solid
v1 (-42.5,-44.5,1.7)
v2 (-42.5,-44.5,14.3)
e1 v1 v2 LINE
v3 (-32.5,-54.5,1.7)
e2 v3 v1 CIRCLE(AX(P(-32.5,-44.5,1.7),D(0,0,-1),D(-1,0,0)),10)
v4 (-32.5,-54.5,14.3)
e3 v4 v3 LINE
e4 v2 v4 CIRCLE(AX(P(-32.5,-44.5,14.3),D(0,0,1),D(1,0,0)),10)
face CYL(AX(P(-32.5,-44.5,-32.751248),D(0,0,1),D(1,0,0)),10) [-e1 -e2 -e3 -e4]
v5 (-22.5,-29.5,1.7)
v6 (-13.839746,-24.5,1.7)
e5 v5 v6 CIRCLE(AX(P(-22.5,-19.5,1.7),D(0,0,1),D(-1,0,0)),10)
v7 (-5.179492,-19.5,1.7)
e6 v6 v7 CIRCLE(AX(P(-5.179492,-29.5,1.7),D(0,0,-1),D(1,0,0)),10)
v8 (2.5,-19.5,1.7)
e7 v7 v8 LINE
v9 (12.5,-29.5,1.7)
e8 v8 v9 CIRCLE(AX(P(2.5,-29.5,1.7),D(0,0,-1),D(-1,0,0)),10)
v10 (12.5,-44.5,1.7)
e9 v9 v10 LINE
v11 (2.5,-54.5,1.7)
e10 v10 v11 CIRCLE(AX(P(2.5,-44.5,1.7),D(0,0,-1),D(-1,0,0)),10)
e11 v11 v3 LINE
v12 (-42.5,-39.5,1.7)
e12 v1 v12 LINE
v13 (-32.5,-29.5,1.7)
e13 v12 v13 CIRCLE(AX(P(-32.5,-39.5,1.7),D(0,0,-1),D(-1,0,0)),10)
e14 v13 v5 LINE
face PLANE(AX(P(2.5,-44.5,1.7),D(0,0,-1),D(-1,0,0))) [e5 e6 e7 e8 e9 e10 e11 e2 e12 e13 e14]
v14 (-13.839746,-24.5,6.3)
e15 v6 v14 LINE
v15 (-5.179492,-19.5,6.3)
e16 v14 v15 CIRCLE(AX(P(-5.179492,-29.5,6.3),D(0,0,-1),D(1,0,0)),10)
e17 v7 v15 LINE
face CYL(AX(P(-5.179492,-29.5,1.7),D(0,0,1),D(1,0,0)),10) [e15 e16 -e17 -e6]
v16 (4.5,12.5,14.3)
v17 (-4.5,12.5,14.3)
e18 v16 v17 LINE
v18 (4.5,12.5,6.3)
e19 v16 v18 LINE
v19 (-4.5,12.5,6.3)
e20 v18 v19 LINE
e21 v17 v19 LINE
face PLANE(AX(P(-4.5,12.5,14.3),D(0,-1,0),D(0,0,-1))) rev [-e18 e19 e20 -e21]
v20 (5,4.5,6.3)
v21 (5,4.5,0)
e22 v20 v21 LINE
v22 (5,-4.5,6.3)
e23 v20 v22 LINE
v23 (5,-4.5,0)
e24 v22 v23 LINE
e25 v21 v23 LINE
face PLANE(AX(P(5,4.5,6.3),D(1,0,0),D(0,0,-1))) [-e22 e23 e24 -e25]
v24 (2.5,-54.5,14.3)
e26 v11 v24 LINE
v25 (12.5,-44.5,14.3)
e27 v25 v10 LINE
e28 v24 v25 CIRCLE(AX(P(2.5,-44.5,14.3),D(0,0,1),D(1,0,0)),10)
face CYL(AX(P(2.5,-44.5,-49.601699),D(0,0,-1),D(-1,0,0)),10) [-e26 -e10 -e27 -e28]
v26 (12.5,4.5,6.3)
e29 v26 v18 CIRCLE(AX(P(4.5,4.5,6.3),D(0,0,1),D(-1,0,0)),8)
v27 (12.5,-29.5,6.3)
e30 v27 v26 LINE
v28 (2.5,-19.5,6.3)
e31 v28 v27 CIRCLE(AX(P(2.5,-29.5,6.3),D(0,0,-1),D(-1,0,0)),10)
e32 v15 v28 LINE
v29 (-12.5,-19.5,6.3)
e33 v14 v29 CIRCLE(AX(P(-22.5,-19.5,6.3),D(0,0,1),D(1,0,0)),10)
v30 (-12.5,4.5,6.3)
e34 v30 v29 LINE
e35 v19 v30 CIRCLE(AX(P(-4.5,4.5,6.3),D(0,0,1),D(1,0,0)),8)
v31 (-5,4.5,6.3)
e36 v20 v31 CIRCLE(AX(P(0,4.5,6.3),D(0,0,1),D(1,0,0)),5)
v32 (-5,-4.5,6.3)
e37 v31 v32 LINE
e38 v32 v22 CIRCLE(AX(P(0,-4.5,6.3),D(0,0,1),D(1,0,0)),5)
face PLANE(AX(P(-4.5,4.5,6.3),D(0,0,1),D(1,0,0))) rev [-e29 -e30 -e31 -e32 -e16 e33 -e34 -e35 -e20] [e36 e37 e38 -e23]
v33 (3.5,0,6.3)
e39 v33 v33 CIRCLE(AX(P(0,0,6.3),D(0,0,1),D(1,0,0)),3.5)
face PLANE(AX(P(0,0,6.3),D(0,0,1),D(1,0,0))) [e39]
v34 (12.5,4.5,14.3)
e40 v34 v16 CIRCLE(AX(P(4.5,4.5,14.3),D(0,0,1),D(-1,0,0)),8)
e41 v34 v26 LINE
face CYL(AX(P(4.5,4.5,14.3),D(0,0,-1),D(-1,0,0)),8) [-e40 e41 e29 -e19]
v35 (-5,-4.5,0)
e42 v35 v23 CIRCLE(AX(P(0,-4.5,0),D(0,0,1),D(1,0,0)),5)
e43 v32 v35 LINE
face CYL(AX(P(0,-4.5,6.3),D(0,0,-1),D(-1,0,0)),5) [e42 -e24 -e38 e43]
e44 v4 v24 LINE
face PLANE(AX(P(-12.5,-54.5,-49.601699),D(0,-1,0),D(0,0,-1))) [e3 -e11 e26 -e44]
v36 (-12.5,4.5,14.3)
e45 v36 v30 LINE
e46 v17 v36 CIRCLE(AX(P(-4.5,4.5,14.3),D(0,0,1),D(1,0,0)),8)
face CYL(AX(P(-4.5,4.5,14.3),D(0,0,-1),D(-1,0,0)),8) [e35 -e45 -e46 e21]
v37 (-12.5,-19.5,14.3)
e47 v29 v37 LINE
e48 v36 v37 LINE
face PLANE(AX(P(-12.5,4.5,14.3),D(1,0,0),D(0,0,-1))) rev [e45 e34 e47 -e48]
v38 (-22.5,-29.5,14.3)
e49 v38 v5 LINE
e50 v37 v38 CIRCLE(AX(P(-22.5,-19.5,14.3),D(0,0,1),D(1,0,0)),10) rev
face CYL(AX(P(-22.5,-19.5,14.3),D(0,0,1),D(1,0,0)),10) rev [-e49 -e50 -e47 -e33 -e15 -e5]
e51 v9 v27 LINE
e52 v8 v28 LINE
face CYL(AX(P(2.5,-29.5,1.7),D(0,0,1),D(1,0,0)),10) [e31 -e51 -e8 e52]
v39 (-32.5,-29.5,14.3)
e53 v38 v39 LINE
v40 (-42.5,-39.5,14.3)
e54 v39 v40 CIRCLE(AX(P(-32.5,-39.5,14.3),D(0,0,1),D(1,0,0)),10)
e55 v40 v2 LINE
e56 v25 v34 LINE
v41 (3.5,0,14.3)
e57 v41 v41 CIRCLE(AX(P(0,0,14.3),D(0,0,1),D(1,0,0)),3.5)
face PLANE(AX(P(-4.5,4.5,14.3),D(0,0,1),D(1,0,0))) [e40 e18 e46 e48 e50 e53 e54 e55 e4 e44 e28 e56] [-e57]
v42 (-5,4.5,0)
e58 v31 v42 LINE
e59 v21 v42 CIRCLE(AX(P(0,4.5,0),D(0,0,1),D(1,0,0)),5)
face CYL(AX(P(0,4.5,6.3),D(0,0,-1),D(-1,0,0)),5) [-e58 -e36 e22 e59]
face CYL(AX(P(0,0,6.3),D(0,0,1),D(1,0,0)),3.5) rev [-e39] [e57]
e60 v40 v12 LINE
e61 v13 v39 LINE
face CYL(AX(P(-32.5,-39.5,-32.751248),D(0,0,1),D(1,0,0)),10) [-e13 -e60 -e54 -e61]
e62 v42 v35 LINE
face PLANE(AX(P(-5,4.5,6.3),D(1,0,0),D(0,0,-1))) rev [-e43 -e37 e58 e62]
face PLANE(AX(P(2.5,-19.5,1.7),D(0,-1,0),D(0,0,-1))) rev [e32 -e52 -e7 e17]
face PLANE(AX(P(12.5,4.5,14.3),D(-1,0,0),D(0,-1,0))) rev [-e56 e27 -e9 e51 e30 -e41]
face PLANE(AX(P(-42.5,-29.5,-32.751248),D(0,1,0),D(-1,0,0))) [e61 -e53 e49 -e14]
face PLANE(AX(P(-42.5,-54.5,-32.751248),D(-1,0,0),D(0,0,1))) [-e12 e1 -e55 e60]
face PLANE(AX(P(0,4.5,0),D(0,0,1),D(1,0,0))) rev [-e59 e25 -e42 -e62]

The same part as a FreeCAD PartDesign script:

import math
import FreeCAD as App
import Part
import Sketcher
from FreeCAD import Vector
Q = App.Units.Quantity


def edges_at(feature, points):
    """Names of the edges that pass closest to the given points."""
    edges = feature.Shape.Edges
    near = lambda p: min(range(len(edges)), key=lambda i: edges[i].distToShape(Part.Vertex(*p))[0])
    return sorted({f"Edge{near(p) + 1}" for p in points})


def add_polygon(sketch, points):
    """Adds a closed chain of lines whose ends are joined by coincident constraints."""
    first, n = sketch.GeometryCount, len(points)
    for a, b in zip(points, points[1:] + points[:1]):
        sketch.addGeometry(Part.LineSegment(App.Vector(*a, 0), App.Vector(*b, 0)), False)
    for i in range(n):
        sketch.addConstraint(Sketcher.Constraint("Coincident", first + i, 2, first + (i + 1) % n, 1))

doc = App.newDocument("Part")
body = doc.addObject("PartDesign::Body", "Body")

# Sketch on XY plane
sketch1 = body.newObject("Sketcher::SketchObject", "Sketch")
sketch1.AttachmentSupport = (doc.getObject("XY_Plane"), [""])
sketch1.MapMode = "FlatFace"
sketch1.addGeometry([
    Part.LineSegment(Vector(5, -4.5, 0), Vector(5, 4.5, 0)),
    Part.ArcOfCircle(Part.Circle(Vector(0, 4.5, 0), Vector(0, 0, 1), 5), math.radians(0), math.radians(180)),
    Part.LineSegment(Vector(-5, 4.5, 0), Vector(-5, -4.5, 0)),
    Part.ArcOfCircle(Part.Circle(Vector(0, -4.5, 0), Vector(0, 0, 1), 5), math.radians(180), math.radians(360)),
], False)
sketch1.addConstraint([
    Sketcher.Constraint("Tangent", 0, 2, 1, 1),
    Sketcher.Constraint("Tangent", 1, 2, 2, 1),
    Sketcher.Constraint("Tangent", 2, 2, 3, 1),
    Sketcher.Constraint("Tangent", 3, 2, 0, 1),
    Sketcher.Constraint("Vertical", 0),
    Sketcher.Constraint("Vertical", 2),
    Sketcher.Constraint("Symmetric", 1, 3, 3, 3, -1, 1),
    Sketcher.Constraint("Radius", 1, Q("5 mm")),
    Sketcher.Constraint("DistanceY", 0, 1, 0, 2, Q("9 mm")),
])
pad1 = body.newObject("PartDesign::Pad", "Pad")
pad1.Profile = sketch1
pad1.Length = 6.3

# Sketch on XY plane
sketch2 = body.newObject("Sketcher::SketchObject", "Sketch001")
sketch2.AttachmentSupport = (doc.getObject("XY_Plane"), [""])
sketch2.MapMode = "FlatFace"
sketch2.AttachmentOffset = App.Placement(Vector(0, 0, 6.3), App.Rotation())
sketch2.addGeometry([
    Part.LineSegment(Vector(4.5, 12.5, 0), Vector(-4.5, 12.5, 0)),  # 0
    Part.ArcOfCircle(Part.Circle(Vector(-4.5, 4.5, 0), Vector(0, 0, 1), 8), math.radians(90), math.radians(180)),  # 1
    Part.LineSegment(Vector(-12.5, 4.5, 0), Vector(-12.5, -4.5, 0)),  # 2
    Part.ArcOfCircle(Part.Circle(Vector(-4.5, -4.5, 0), Vector(0, 0, 1), 8), math.radians(-180), math.radians(-90)),  # 3
    Part.LineSegment(Vector(-4.5, -12.5, 0), Vector(4.5, -12.5, 0)),  # 4
    Part.ArcOfCircle(Part.Circle(Vector(4.5, -4.5, 0), Vector(0, 0, 1), 8), math.radians(-90), math.radians(0)),  # 5
    Part.LineSegment(Vector(12.5, -4.5, 0), Vector(12.5, 4.5, 0)),  # 6
    Part.ArcOfCircle(Part.Circle(Vector(4.5, 4.5, 0), Vector(0, 0, 1), 8), math.radians(0), math.radians(90)),  # 7
], False)
sketch2.addConstraint([
    Sketcher.Constraint("Tangent", 0, 2, 1, 1),
    Sketcher.Constraint("Tangent", 1, 2, 2, 1),
    Sketcher.Constraint("Tangent", 2, 2, 3, 1),
    Sketcher.Constraint("Tangent", 3, 2, 4, 1),
    Sketcher.Constraint("Tangent", 4, 2, 5, 1),
    Sketcher.Constraint("Tangent", 5, 2, 6, 1),
    Sketcher.Constraint("Tangent", 6, 2, 7, 1),
    Sketcher.Constraint("Tangent", 7, 2, 0, 1),
    Sketcher.Constraint("Horizontal", 0),
    Sketcher.Constraint("Vertical", 2),
    Sketcher.Constraint("Horizontal", 4),
    Sketcher.Constraint("Vertical", 6),
    Sketcher.Constraint("Equal", 1, 3),
    Sketcher.Constraint("Equal", 3, 5),
    Sketcher.Constraint("Equal", 5, 7),
    Sketcher.Constraint("Symmetric", 1, 3, 5, 3, -1, 1),
    Sketcher.Constraint("Equal", 4, 2),
    Sketcher.Constraint("Radius", 1, Q("8 mm")),
    Sketcher.Constraint("DistanceX", 0, 2, 0, 1, Q("9 mm")),
])
pad2 = body.newObject("PartDesign::Pad", "Pad001")
pad2.Profile = sketch2
pad2.Length = 8

# Sketch on XY plane
sketch3 = body.newObject("Sketcher::SketchObject", "Sketch002")
sketch3.AttachmentSupport = (doc.getObject("XY_Plane"), [""])
sketch3.MapMode = "FlatFace"
sketch3.AttachmentOffset = App.Placement(Vector(0, 0, 14.3), App.Rotation())
sketch3.addGeometry(Part.Circle(Vector(0, 0, 0), Vector(0, 0, 1), 3.5), False)
sketch3.addConstraint([
    Sketcher.Constraint("Coincident", 0, 3, -1, 1),
    Sketcher.Constraint("Diameter", 0, Q("7 mm")),
])
pocket1 = body.newObject("PartDesign::Pocket", "Pocket")
pocket1.Profile = sketch3
pocket1.Length = 8

# Sketch on XY plane
sketch4 = body.newObject("Sketcher::SketchObject", "Sketch003")
sketch4.AttachmentSupport = (doc.getObject("XY_Plane"), [""])
sketch4.MapMode = "FlatFace"
sketch4.AttachmentOffset = App.Placement(Vector(0, 0, 6.3), App.Rotation())
sketch4.addGeometry([
    Part.LineSegment(Vector(-12.5, -4.5, 0), Vector(-12.5, -54.5, 0)),  # 0
    Part.LineSegment(Vector(-12.5, -54.5, 0), Vector(12.5, -54.5, 0)),  # 1
    Part.LineSegment(Vector(12.5, -54.5, 0), Vector(12.5, -4.5, 0)),  # 2
    Part.ArcOfCircle(Part.Circle(Vector(4.5, -4.5, 0), Vector(0, 0, 1), 8), math.radians(-90), math.radians(0)),  # 3
    Part.LineSegment(Vector(4.5, -12.5, 0), Vector(-4.5, -12.5, 0)),  # 4
    Part.ArcOfCircle(Part.Circle(Vector(-4.5, -4.5, 0), Vector(0, 0, 1), 8), math.radians(-180), math.radians(-90)),  # 5
], False)
sketch4.addConstraint([
    Sketcher.Constraint("Coincident", 0, 2, 1, 1),
    Sketcher.Constraint("Coincident", 1, 2, 2, 1),
    Sketcher.Constraint("Tangent", 2, 2, 3, 2),
    Sketcher.Constraint("Tangent", 3, 1, 4, 1),
    Sketcher.Constraint("Tangent", 4, 2, 5, 2),
    Sketcher.Constraint("Tangent", 5, 1, 0, 1),
    Sketcher.Constraint("Vertical", 0),
    Sketcher.Constraint("Horizontal", 1),
    Sketcher.Constraint("Vertical", 2),
    Sketcher.Constraint("Horizontal", 4),
    Sketcher.Constraint("Equal", 3, 5),
    Sketcher.Constraint("Radius", 3, Q("8 mm")),
    Sketcher.Constraint("DistanceX", 1, 1, 1, 2, Q("25 mm")),
    Sketcher.Constraint("DistanceY", 0, 2, 0, 1, Q("50 mm")),
    Sketcher.Constraint("DistanceX", -1, 1, 3, 3, Q("4.5 mm")),
    Sketcher.Constraint("DistanceY", 3, 3, -1, 1, Q("4.5 mm")),
])
pad3 = body.newObject("PartDesign::Pad", "Pad002")
pad3.Profile = sketch4
pad3.Length = 8

# Sketch on XY plane
sketch5 = body.newObject("Sketcher::SketchObject", "Sketch004")
sketch5.AttachmentSupport = (doc.getObject("XY_Plane"), [""])
sketch5.MapMode = "FlatFace"
sketch5.AttachmentOffset = App.Placement(Vector(0, 0, 14.3), App.Rotation())
add_polygon(sketch5, [(-42.5, -29.5), (-42.5, -54.5), (-12.5, -54.5), (-12.5, -29.5)])  # lines 0-3
sketch5.addConstraint([
    Sketcher.Constraint("Vertical", 0),
    Sketcher.Constraint("Horizontal", 1),
    Sketcher.Constraint("Vertical", 2),
    Sketcher.Constraint("Horizontal", 3),
    Sketcher.Constraint("DistanceX", 1, 1, 1, 2, Q("30 mm")),
    Sketcher.Constraint("DistanceY", 0, 2, 0, 1, Q("25 mm")),
    Sketcher.Constraint("DistanceX", 0, 2, -1, 1, Q("42.5 mm")),
    Sketcher.Constraint("DistanceY", 0, 2, -1, 1, Q("54.5 mm")),
])
pad4 = body.newObject("PartDesign::Pad", "Pad003")
pad4.Profile = sketch5
pad4.Length = 8
pad4.Reversed = True
doc.recompute()

fillet = body.newObject("PartDesign::Fillet", "Fillet")
fillet.Base = (pad4, edges_at(pad4, [
    (12.5, -54.5, 10.3),
    (-12.5, -29.5, 10.3),
    (-42.5, -54.5, 10.3),
    (-42.5, -29.5, 10.3),
]))
fillet.Radius = 10

# Sketch on XY plane
sketch6 = body.newObject("Sketcher::SketchObject", "Sketch005")
sketch6.AttachmentSupport = (doc.getObject("XY_Plane"), [""])
sketch6.MapMode = "FlatFace"
sketch6.AttachmentOffset = App.Placement(Vector(0, 0, 1.7), App.Rotation())
sketch6.addGeometry([
    Part.LineSegment(Vector(-5.179492, -19.5, 0), Vector(2.5, -19.5, 0)),  # 0
    Part.ArcOfCircle(Part.Circle(Vector(2.5, -29.5, 0), Vector(0, 0, 1), 10), math.radians(0), math.radians(90)),  # 1
    Part.LineSegment(Vector(12.5, -29.5, 0), Vector(12.5, -44.5, 0)),  # 2
    Part.ArcOfCircle(Part.Circle(Vector(2.5, -44.5, 0), Vector(0, 0, 1), 10), math.radians(-90), math.radians(0)),  # 3
    Part.LineSegment(Vector(2.5, -54.5, 0), Vector(-32.5, -54.5, 0)),  # 4
    Part.ArcOfCircle(Part.Circle(Vector(-32.5, -44.5, 0), Vector(0, 0, 1), 10), math.radians(180), math.radians(270)),  # 5
    Part.LineSegment(Vector(-42.5, -44.5, 0), Vector(-42.5, -39.5, 0)),  # 6
    Part.ArcOfCircle(Part.Circle(Vector(-32.5, -39.5, 0), Vector(0, 0, 1), 10), math.radians(90), math.radians(180)),  # 7
    Part.LineSegment(Vector(-32.5, -29.5, 0), Vector(-22.5, -29.5, 0)),  # 8
    Part.ArcOfCircle(Part.Circle(Vector(-22.5, -19.5, 0), Vector(0, 0, 1), 10), math.radians(-90), math.radians(-30)),  # 9
    Part.ArcOfCircle(Part.Circle(Vector(-5.179492, -29.5, 0), Vector(0, 0, 1), 10), math.radians(90), math.radians(150)),  # 10
], False)
sketch6.addConstraint([
    Sketcher.Constraint("Tangent", 0, 2, 1, 2),
    Sketcher.Constraint("Tangent", 1, 1, 2, 1),
    Sketcher.Constraint("Tangent", 2, 2, 3, 2),
    Sketcher.Constraint("Tangent", 3, 1, 4, 1),
    Sketcher.Constraint("Tangent", 4, 2, 5, 2),
    Sketcher.Constraint("Tangent", 5, 1, 6, 1),
    Sketcher.Constraint("Tangent", 6, 2, 7, 2),
    Sketcher.Constraint("Tangent", 7, 1, 8, 1),
    Sketcher.Constraint("Tangent", 8, 2, 9, 1),
    Sketcher.Constraint("Tangent", 9, 2, 10, 2),
    Sketcher.Constraint("Tangent", 10, 1, 0, 1),
    Sketcher.Constraint("Horizontal", 0),
    Sketcher.Constraint("Vertical", 2),
    Sketcher.Constraint("Horizontal", 4),
    Sketcher.Constraint("Vertical", 6),
    Sketcher.Constraint("Horizontal", 8),
    Sketcher.Constraint("Equal", 1, 3),
    Sketcher.Constraint("Equal", 3, 5),
    Sketcher.Constraint("Equal", 5, 7),
    Sketcher.Constraint("Equal", 7, 9),
    Sketcher.Constraint("Equal", 9, 10),
    Sketcher.Constraint("Horizontal", 9, 3, 0, 2),
    Sketcher.Constraint("Radius", 1, Q("10 mm")),
    Sketcher.Constraint("DistanceX", 4, 2, 4, 1, Q("35 mm")),
    Sketcher.Constraint("DistanceX", 8, 1, 8, 2, Q("10 mm")),
    Sketcher.Constraint("DistanceY", 2, 2, 2, 1, Q("15 mm")),
    Sketcher.Constraint("DistanceX", -1, 1, 1, 3, Q("2.5 mm")),
    Sketcher.Constraint("DistanceY", 1, 3, -1, 1, Q("29.5 mm")),
])
pad5 = body.newObject("PartDesign::Pad", "Pad004")
pad5.Profile = sketch6
pad5.Length = 4.6

doc.recompute()
